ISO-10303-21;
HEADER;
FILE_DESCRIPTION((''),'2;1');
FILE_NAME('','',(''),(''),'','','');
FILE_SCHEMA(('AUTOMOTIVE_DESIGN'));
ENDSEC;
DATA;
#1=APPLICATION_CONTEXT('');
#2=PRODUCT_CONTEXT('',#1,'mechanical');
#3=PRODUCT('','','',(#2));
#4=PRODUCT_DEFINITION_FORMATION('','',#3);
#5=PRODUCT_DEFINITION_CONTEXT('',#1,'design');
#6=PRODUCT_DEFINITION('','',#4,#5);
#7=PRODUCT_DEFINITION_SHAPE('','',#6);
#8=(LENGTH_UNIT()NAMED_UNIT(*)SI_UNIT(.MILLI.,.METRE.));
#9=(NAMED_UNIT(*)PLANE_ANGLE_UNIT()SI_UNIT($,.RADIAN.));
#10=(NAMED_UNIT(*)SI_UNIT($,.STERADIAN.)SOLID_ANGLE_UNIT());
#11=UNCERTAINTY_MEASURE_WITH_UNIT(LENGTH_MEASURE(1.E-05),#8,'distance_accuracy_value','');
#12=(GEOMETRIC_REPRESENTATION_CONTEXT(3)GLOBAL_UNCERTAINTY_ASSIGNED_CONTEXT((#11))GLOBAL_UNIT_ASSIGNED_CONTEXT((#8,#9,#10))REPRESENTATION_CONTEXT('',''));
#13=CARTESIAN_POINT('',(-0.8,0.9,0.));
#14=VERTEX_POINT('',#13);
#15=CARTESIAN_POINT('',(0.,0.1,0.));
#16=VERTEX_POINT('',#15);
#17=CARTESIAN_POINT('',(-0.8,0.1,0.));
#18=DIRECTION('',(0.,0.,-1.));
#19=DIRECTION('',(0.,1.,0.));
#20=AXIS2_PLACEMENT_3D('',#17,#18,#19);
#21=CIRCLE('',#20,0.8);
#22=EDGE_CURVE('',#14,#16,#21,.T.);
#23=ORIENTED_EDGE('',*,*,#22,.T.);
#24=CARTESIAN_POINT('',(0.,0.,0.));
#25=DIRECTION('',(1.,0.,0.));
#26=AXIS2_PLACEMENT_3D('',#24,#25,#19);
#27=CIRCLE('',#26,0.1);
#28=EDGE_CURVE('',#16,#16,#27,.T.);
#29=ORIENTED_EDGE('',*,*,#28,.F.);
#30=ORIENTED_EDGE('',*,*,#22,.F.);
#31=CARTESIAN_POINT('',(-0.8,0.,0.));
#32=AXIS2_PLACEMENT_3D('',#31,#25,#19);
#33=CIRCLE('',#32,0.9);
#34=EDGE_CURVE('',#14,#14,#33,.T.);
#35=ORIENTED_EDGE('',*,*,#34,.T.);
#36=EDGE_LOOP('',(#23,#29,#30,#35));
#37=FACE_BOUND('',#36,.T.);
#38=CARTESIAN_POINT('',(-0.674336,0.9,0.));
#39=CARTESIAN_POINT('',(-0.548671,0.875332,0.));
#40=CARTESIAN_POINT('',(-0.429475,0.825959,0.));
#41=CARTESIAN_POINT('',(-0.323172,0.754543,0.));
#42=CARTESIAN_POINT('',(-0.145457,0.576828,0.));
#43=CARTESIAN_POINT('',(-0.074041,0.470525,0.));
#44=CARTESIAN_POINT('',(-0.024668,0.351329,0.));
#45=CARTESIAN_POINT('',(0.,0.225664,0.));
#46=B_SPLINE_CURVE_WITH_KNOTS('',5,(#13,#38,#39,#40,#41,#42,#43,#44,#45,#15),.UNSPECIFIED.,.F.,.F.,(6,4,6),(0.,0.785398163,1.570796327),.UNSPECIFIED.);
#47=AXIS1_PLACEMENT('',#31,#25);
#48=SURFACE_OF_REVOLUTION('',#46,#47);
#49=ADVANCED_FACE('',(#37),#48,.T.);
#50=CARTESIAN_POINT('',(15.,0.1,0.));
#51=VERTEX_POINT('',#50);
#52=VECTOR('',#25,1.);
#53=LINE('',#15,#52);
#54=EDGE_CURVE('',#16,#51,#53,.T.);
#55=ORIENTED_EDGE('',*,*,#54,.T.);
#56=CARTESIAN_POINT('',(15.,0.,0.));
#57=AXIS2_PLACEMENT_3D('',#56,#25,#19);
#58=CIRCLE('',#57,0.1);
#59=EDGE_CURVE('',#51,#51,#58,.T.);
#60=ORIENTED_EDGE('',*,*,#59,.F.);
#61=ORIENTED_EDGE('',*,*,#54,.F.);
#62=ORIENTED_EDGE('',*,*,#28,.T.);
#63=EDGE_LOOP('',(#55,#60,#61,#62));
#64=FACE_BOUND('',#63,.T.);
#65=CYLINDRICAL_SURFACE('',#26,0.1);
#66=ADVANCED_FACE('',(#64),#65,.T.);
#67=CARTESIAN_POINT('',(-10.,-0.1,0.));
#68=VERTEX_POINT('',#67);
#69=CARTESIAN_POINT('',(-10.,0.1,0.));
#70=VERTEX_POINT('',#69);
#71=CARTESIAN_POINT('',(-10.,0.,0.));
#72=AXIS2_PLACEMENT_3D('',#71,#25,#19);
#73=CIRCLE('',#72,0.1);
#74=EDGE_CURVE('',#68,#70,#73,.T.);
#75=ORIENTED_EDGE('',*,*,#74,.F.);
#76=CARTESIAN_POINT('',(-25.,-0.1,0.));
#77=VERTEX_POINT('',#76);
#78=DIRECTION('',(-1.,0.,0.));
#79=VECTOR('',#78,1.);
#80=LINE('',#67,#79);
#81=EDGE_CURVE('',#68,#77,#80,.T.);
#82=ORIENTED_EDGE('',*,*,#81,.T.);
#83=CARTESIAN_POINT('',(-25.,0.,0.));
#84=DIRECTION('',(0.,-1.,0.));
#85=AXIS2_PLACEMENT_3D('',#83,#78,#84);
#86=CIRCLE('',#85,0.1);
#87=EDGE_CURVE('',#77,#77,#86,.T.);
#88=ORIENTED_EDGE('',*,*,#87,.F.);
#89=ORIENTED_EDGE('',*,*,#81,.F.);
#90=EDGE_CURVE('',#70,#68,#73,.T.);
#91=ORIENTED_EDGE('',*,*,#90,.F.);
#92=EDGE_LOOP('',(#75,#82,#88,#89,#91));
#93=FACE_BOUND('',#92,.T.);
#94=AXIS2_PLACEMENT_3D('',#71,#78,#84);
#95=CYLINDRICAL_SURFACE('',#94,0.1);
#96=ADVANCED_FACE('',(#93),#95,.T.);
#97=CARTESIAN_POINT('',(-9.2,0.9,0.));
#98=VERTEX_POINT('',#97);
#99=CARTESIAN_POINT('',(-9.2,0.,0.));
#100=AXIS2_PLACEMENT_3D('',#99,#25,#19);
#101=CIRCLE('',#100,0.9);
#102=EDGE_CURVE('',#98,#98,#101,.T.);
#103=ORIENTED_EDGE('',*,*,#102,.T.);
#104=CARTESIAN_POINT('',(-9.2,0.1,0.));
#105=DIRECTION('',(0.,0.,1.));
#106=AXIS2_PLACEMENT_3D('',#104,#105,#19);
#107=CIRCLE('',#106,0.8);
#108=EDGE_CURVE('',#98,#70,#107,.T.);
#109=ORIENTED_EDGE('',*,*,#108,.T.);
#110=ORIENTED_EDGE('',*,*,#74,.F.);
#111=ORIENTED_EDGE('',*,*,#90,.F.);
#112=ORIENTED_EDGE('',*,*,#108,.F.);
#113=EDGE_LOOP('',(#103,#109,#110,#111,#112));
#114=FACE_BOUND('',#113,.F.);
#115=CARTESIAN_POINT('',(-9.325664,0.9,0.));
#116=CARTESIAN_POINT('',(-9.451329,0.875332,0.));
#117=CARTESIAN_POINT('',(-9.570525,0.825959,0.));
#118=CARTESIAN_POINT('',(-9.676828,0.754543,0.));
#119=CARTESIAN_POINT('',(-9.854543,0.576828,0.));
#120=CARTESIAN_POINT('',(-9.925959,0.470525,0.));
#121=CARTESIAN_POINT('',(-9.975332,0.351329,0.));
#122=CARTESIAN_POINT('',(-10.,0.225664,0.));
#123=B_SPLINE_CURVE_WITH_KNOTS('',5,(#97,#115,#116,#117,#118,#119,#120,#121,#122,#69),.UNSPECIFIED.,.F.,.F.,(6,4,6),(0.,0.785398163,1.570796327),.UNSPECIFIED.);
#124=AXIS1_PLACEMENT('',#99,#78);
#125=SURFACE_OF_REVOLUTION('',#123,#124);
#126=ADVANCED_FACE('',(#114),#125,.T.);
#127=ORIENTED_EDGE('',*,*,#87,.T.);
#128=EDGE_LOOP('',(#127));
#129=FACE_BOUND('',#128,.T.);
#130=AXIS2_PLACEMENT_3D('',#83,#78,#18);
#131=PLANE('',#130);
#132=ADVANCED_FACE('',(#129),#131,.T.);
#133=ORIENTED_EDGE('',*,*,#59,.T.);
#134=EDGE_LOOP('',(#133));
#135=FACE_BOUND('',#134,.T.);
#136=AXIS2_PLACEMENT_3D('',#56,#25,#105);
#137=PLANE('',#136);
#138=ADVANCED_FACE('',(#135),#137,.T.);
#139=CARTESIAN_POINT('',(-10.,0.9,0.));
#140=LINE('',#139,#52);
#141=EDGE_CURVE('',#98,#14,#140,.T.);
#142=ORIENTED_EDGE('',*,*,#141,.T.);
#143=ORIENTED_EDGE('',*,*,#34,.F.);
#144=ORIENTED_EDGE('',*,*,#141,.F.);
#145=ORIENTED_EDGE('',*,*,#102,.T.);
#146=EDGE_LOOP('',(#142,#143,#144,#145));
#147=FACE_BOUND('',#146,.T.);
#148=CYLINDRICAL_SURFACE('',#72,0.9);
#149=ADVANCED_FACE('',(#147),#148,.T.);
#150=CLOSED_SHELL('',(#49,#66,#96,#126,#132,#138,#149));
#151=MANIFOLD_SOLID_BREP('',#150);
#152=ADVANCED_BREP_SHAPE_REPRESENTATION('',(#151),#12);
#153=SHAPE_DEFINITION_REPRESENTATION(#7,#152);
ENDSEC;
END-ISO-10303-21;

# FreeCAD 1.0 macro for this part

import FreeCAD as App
import Part
import Sketcher
Q = App.Units.Quantity


def edges_at(feature, points):
    """Names of the edges that pass closest to the given points."""
    edges = feature.Shape.Edges
    near = lambda p: min(range(len(edges)), key=lambda i: edges[i].distToShape(Part.Vertex(*p))[0])
    return sorted({f"Edge{near(p) + 1}" for p in points})

doc = App.newDocument("Part")
body = doc.addObject("PartDesign::Body", "Body")

sketch1 = doc.addObject("Sketcher::SketchObject", "Sketch")
body.addObject(sketch1)
sketch1.AttachmentSupport = (doc.YZ_Plane, [""])
sketch1.MapMode = "FlatFace"
sketch1.addGeometry(Part.Circle(App.Vector(0, 0, 0), App.Vector(0, 0, 1), 0.9), False)
sketch1.addConstraint(Sketcher.Constraint("Coincident", 0, 3, -1, 1))
sketch1.addConstraint(Sketcher.Constraint("Diameter", 0, Q("1.8 mm")))

sketch2 = doc.addObject("Sketcher::SketchObject", "Sketch001")
body.addObject(sketch2)
sketch2.AttachmentSupport = (doc.XY_Plane, [""])
sketch2.MapMode = "FlatFace"
sketch2.addGeometry(Part.LineSegment(App.Vector(-10, 0, 0), App.Vector(0, 0, 0)), False)
sketch2.addConstraint(Sketcher.Constraint("Horizontal", 0))
sketch2.addConstraint(Sketcher.Constraint("Coincident", 0, 2, -1, 1))
sketch2.addConstraint(Sketcher.Constraint("DistanceX", 0, 1, 0, 2, Q("10 mm")))
doc.recompute()

additivepipe = doc.addObject("PartDesign::AdditivePipe", "AdditivePipe")
body.addObject(additivepipe)
additivepipe.Profile = sketch1
additivepipe.Spine = (sketch2, ["Edge1"])
doc.recompute()

fillet = doc.addObject("PartDesign::Fillet", "Fillet")
body.addObject(fillet)
fillet.Base = (additivepipe, edges_at(additivepipe, [(0, -0.9, 0), (-10, -0.9, 0)]))
fillet.Radius = 0.8

sketch3 = doc.addObject("Sketcher::SketchObject", "Sketch002")
body.addObject(sketch3)
sketch3.AttachmentSupport = (doc.YZ_Plane, [""])
sketch3.MapMode = "FlatFace"
sketch3.addGeometry(Part.Circle(App.Vector(0, 0, 0), App.Vector(0, 0, 1), 0.1), False)
sketch3.addConstraint(Sketcher.Constraint("Coincident", 0, 3, -1, 1))
sketch3.addConstraint(Sketcher.Constraint("Diameter", 0, Q("0.2 mm")))

sketch4 = doc.addObject("Sketcher::SketchObject", "Sketch003")
body.addObject(sketch4)
sketch4.AttachmentSupport = (doc.XY_Plane, [""])
sketch4.MapMode = "FlatFace"
sketch4.addGeometry(Part.LineSegment(App.Vector(0, 0, 0), App.Vector(15, 0, 0)), False)
sketch4.addConstraint(Sketcher.Constraint("Horizontal", 0))
sketch4.addConstraint(Sketcher.Constraint("Coincident", 0, 1, -1, 1))
sketch4.addConstraint(Sketcher.Constraint("DistanceX", 0, 1, 0, 2, Q("15 mm")))
doc.recompute()

additivepipe2 = doc.addObject("PartDesign::AdditivePipe", "AdditivePipe001")
body.addObject(additivepipe2)
additivepipe2.Profile = sketch3
additivepipe2.Spine = (sketch4, ["Edge1"])

sketch5 = doc.addObject("Sketcher::SketchObject", "Sketch004")
body.addObject(sketch5)
sketch5.AttachmentSupport = (doc.YZ_Plane, [""])
sketch5.MapMode = "FlatFace"
sketch5.AttachmentOffset = App.Placement(App.Vector(0, 0, -10), App.Rotation())
sketch5.addGeometry(Part.Circle(App.Vector(0, 0, 0), App.Vector(0, 0, 1), 0.1), False)
sketch5.addConstraint(Sketcher.Constraint("Coincident", 0, 3, -1, 1))
sketch5.addConstraint(Sketcher.Constraint("Diameter", 0, Q("0.2 mm")))

sketch6 = doc.addObject("Sketcher::SketchObject", "Sketch005")
body.addObject(sketch6)
sketch6.AttachmentSupport = (doc.XY_Plane, [""])
sketch6.MapMode = "FlatFace"
sketch6.addGeometry(Part.LineSegment(App.Vector(-10, 0, 0), App.Vector(-25, 0, 0)), False)
sketch6.addConstraint(Sketcher.Constraint("Horizontal", 0))
sketch6.addConstraint(Sketcher.Constraint("PointOnObject", 0, 1, -1))
sketch6.addConstraint(Sketcher.Constraint("DistanceX", 0, 2, 0, 1, Q("15 mm")))
sketch6.addConstraint(Sketcher.Constraint("DistanceX", 0, 1, -1, 1, Q("10 mm")))
doc.recompute()

additivepipe3 = doc.addObject("PartDesign::AdditivePipe", "AdditivePipe002")
body.addObject(additivepipe3)
additivepipe3.Profile = sketch5
additivepipe3.Spine = (sketch6, ["Edge1"])

doc.recompute()
